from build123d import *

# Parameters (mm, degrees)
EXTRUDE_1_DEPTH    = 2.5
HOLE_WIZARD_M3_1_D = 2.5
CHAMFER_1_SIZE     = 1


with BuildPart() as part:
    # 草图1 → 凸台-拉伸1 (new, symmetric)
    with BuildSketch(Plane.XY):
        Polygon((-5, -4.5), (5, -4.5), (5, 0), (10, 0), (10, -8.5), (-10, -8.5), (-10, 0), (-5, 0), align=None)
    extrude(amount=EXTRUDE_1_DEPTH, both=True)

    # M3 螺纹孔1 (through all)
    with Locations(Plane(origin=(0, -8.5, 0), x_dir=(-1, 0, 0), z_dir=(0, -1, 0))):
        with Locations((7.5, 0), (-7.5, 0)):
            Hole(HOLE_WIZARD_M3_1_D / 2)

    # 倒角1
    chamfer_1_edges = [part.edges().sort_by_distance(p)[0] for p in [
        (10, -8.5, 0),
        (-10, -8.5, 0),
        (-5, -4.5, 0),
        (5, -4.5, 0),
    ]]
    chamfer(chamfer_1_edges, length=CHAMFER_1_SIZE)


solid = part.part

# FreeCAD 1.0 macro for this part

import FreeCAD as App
import Part
import Sketcher
Q = App.Units.Quantity


def edges_at(feature, points):
    """Names of the edges that pass closest to the given points."""
    edges = feature.Shape.Edges
    near = lambda p: min(range(len(edges)), key=lambda i: edges[i].distToShape(Part.Vertex(*p))[0])
    return sorted({f"Edge{near(p) + 1}" for p in points})

doc = App.newDocument("Part")
body = doc.addObject("PartDesign::Body", "Body")

# Sketch on XY plane
sketch1 = body.newObject("Sketcher::SketchObject", "Sketch")
sketch1.AttachmentSupport = (doc.getObject("XY_Plane"), [""])
sketch1.MapMode = "FlatFace"
sketch1.addGeometry(Part.LineSegment(App.Vector(5, -4.5, 0), App.Vector(-5, -4.5, 0)), False)
sketch1.addGeometry(Part.LineSegment(App.Vector(-5, -4.5, 0), App.Vector(-5, 0, 0)), False)
sketch1.addGeometry(Part.LineSegment(App.Vector(-5, 0, 0), App.Vector(-10, 0, 0)), False)
sketch1.addGeometry(Part.LineSegment(App.Vector(-10, 0, 0), App.Vector(-10, -8.5, 0)), False)
sketch1.addGeometry(Part.LineSegment(App.Vector(-10, -8.5, 0), App.Vector(10, -8.5, 0)), False)
sketch1.addGeometry(Part.LineSegment(App.Vector(10, -8.5, 0), App.Vector(10, 0, 0)), False)
sketch1.addGeometry(Part.LineSegment(App.Vector(10, 0, 0), App.Vector(5, 0, 0)), False)
sketch1.addGeometry(Part.LineSegment(App.Vector(5, 0, 0), App.Vector(5, -4.5, 0)), False)
sketch1.addConstraint(Sketcher.Constraint("Coincident", 0, 2, 1, 1))
sketch1.addConstraint(Sketcher.Constraint("Coincident", 1, 2, 2, 1))
sketch1.addConstraint(Sketcher.Constraint("Coincident", 2, 2, 3, 1))
sketch1.addConstraint(Sketcher.Constraint("Coincident", 3, 2, 4, 1))
sketch1.addConstraint(Sketcher.Constraint("Coincident", 4, 2, 5, 1))
sketch1.addConstraint(Sketcher.Constraint("Coincident", 5, 2, 6, 1))
sketch1.addConstraint(Sketcher.Constraint("Coincident", 6, 2, 7, 1))
sketch1.addConstraint(Sketcher.Constraint("Coincident", 7, 2, 0, 1))
sketch1.addConstraint(Sketcher.Constraint("Horizontal", 0))
sketch1.addConstraint(Sketcher.Constraint("Vertical", 1))
sketch1.addConstraint(Sketcher.Constraint("Horizontal", 2))
sketch1.addConstraint(Sketcher.Constraint("Vertical", 3))
sketch1.addConstraint(Sketcher.Constraint("Horizontal", 4))
sketch1.addConstraint(Sketcher.Constraint("Vertical", 5))
sketch1.addConstraint(Sketcher.Constraint("Horizontal", 6))
sketch1.addConstraint(Sketcher.Constraint("Vertical", 7))
sketch1.addConstraint(Sketcher.Constraint("Symmetric", 2, 2, 5, 2, -1, 1))
sketch1.addConstraint(Sketcher.Constraint("Symmetric", 1, 2, 6, 2, -2))
sketch1.addConstraint(Sketcher.Constraint("DistanceX", 0, 2, 0, 1, Q("10 mm")))
sketch1.addConstraint(Sketcher.Constraint("DistanceX", 2, 2, 2, 1, Q("5 mm")))
sketch1.addConstraint(Sketcher.Constraint("DistanceY", 1, 1, 1, 2, Q("4.5 mm")))
sketch1.addConstraint(Sketcher.Constraint("DistanceY", 3, 2, 3, 1, Q("8.5 mm")))
pad1 = body.newObject("PartDesign::Pad", "Pad")
pad1.Profile = sketch1
pad1.Length = 5
pad1.Midplane = True

# Sketch on XZ plane
sketch2 = body.newObject("Sketcher::SketchObject", "Sketch001")
sketch2.AttachmentSupport = (doc.getObject("XZ_Plane"), [""])
sketch2.MapMode = "FlatFace"
sketch2.AttachmentOffset = App.Placement(App.Vector(0, 0, 8.5), App.Rotation())
sketch2.addGeometry(Part.Circle(App.Vector(-7.5, 0, 0), App.Vector(0, 0, 1), 1.2), False)
sketch2.addGeometry(Part.Circle(App.Vector(7.5, 0, 0), App.Vector(0, 0, 1), 1.2), False)
sketch2.addConstraint(Sketcher.Constraint("Equal", 0, 1))
sketch2.addConstraint(Sketcher.Constraint("Symmetric", 0, 3, 1, 3, -1, 1))
sketch2.addConstraint(Sketcher.Constraint("PointOnObject", 0, 3, -1))
sketch2.addConstraint(Sketcher.Constraint("Diameter", 0, Q("2.5 mm")))
sketch2.addConstraint(Sketcher.Constraint("DistanceX", 0, 3, 1, 3, Q("15 mm")))
doc.recompute()
hole = body.newObject("PartDesign::Hole", "Hole")
hole.Profile = sketch2
hole.ThreadType = "None"
hole.Diameter = 2.5
hole.DepthType = "ThroughAll"
doc.recompute()

chamfer = body.newObject("PartDesign::Chamfer", "Chamfer")
chamfer.Base = (hole, edges_at(hole, [
    (10, -8.5, 0),
    (-10, -8.5, 0),
    (-5, -4.5, 0),
    (5, -4.5, 0),
]))
chamfer.Size = 1

doc.recompute()
